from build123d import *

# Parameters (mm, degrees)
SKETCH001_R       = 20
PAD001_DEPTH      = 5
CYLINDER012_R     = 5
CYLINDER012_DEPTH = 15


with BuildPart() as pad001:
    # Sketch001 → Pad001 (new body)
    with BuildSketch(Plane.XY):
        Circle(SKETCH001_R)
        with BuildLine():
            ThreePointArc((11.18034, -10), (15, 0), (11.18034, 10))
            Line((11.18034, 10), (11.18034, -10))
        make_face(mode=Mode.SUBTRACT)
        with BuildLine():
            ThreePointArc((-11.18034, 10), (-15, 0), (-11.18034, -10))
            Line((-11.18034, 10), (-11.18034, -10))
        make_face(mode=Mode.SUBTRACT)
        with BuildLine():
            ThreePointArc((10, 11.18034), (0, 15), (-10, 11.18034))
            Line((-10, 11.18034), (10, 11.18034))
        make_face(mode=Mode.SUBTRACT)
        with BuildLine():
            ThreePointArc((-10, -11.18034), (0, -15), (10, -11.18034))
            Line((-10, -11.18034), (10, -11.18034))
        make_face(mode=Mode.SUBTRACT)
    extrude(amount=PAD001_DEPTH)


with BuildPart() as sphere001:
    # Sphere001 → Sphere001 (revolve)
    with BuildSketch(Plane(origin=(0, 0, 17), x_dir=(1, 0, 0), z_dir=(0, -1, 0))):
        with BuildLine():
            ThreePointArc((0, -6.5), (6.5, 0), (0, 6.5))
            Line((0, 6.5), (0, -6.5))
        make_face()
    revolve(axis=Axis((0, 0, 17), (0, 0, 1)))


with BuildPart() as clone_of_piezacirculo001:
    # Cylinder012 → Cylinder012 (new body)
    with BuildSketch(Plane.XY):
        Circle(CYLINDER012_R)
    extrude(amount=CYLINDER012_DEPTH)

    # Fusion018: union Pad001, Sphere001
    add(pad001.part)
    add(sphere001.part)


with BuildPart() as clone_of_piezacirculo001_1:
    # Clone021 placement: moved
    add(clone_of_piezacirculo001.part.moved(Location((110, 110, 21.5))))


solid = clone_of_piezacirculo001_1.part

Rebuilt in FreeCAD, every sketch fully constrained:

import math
import FreeCAD as App
import Part
import Sketcher
Q = App.Units.Quantity

doc = App.newDocument("Part")
body = doc.addObject("PartDesign::Body", "Body")

# Sketch on XY plane
sketch1 = doc.addObject("Sketcher::SketchObject", "Sketch")
body.addObject(sketch1)
sketch1.AttachmentSupport = (doc.XY_Plane, [""])
sketch1.MapMode = "FlatFace"
sketch1.addGeometry(Part.Circle(App.Vector(0, 0, 0), App.Vector(0, 0, 1), 20), False)
sketch1.addGeometry(Part.ArcOfCircle(Part.Circle(App.Vector(0, 0, 0), App.Vector(0, 0, 1), 15), math.radians(-132), math.radians(-48)), False)
sketch1.addGeometry(Part.LineSegment(App.Vector(-10, -11, 0), App.Vector(10, -11, 0)), False)
sketch1.addGeometry(Part.ArcOfCircle(Part.Circle(App.Vector(0, 0, 0), App.Vector(0, 0, 1), 15), math.radians(138), math.radians(222)), False)
sketch1.addGeometry(Part.LineSegment(App.Vector(-11, 10, 0), App.Vector(-11, -10, 0)), False)
sketch1.addGeometry(Part.ArcOfCircle(Part.Circle(App.Vector(0, 0, 0), App.Vector(0, 0, 1), 15), math.radians(48), math.radians(132)), False)
sketch1.addGeometry(Part.LineSegment(App.Vector(10, 11, 0), App.Vector(-10, 11, 0)), False)
sketch1.addGeometry(Part.ArcOfCircle(Part.Circle(App.Vector(0, 0, 0), App.Vector(0, 0, 1), 15), math.radians(-42), math.radians(42)), False)
sketch1.addGeometry(Part.LineSegment(App.Vector(11, -10, 0), App.Vector(11, 10, 0)), False)
sketch1.addConstraint(Sketcher.Constraint("Coincident", 1, 1, 2, 1))
sketch1.addConstraint(Sketcher.Constraint("Coincident", 2, 2, 1, 2))
sketch1.addConstraint(Sketcher.Constraint("Coincident", 3, 1, 4, 1))
sketch1.addConstraint(Sketcher.Constraint("Coincident", 4, 2, 3, 2))
sketch1.addConstraint(Sketcher.Constraint("Coincident", 5, 1, 6, 1))
sketch1.addConstraint(Sketcher.Constraint("Coincident", 6, 2, 5, 2))
sketch1.addConstraint(Sketcher.Constraint("Coincident", 7, 1, 8, 1))
sketch1.addConstraint(Sketcher.Constraint("Coincident", 8, 2, 7, 2))
sketch1.addConstraint(Sketcher.Constraint("Horizontal", 2))
sketch1.addConstraint(Sketcher.Constraint("Vertical", 4))
sketch1.addConstraint(Sketcher.Constraint("Horizontal", 6))
sketch1.addConstraint(Sketcher.Constraint("Vertical", 8))
sketch1.addConstraint(Sketcher.Constraint("Coincident", 0, 3, -1, 1))
sketch1.addConstraint(Sketcher.Constraint("Coincident", 1, 3, -1, 1))
sketch1.addConstraint(Sketcher.Constraint("Coincident", 3, 3, -1, 1))
sketch1.addConstraint(Sketcher.Constraint("Coincident", 5, 3, -1, 1))
sketch1.addConstraint(Sketcher.Constraint("Coincident", 7, 3, -1, 1))
sketch1.addConstraint(Sketcher.Constraint("Equal", 1, 3))
sketch1.addConstraint(Sketcher.Constraint("Equal", 3, 5))
sketch1.addConstraint(Sketcher.Constraint("Equal", 5, 7))
sketch1.addConstraint(Sketcher.Constraint("Horizontal", 4, 2, 7, 1))
sketch1.addConstraint(Sketcher.Constraint("Vertical", 2, 2, 5, 1))
sketch1.addConstraint(Sketcher.Constraint("Equal", 6, 4))
sketch1.addConstraint(Sketcher.Constraint("Diameter", 0, Q("40 mm")))
sketch1.addConstraint(Sketcher.Constraint("Radius", 1, Q("15 mm")))
sketch1.addConstraint(Sketcher.Constraint("DistanceX", 2, 1, 2, 2, Q("20 mm")))
pad1 = doc.addObject("PartDesign::Pad", "Pad")
body.addObject(pad1)
pad1.Profile = sketch1
pad1.Length = 5
body2 = doc.addObject("PartDesign::Body", "Body001")

# Sketch on XZ plane
sketch2 = doc.addObject("Sketcher::SketchObject", "Sketch001")
body2.addObject(sketch2)
sketch2.AttachmentSupport = (doc.getObject("XZ_Plane001"), [""])
sketch2.MapMode = "FlatFace"
sketch2.addGeometry(Part.ArcOfCircle(Part.Circle(App.Vector(0, 17, 0), App.Vector(0, 0, 1), 6), math.radians(-90), math.radians(90)), False)
sketch2.addGeometry(Part.LineSegment(App.Vector(0, 24, 0), App.Vector(0, 10, 0)), False)
sketch2.addConstraint(Sketcher.Constraint("Coincident", 0, 1, 1, 2))
sketch2.addConstraint(Sketcher.Constraint("Coincident", 1, 1, 0, 2))
sketch2.addConstraint(Sketcher.Constraint("Vertical", 1))
sketch2.addConstraint(Sketcher.Constraint("PointOnObject", 0, 3, -2))
sketch2.addConstraint(Sketcher.Constraint("PointOnObject", 0, 1, -2))
sketch2.addConstraint(Sketcher.Constraint("Radius", 0, Q("6.5 mm")))
sketch2.addConstraint(Sketcher.Constraint("DistanceY", -1, 1, 0, 3, Q("17 mm")))
revolution = doc.addObject("PartDesign::Revolution", "Revolution")
body2.addObject(revolution)
revolution.Profile = sketch2
revolution.ReferenceAxis = (sketch2, ["V_Axis"])
revolution.Angle = 360
body3 = doc.addObject("PartDesign::Body", "Body002")

# Sketch on XY plane
sketch3 = doc.addObject("Sketcher::SketchObject", "Sketch002")
body3.addObject(sketch3)
sketch3.AttachmentSupport = (doc.getObject("XY_Plane002"), [""])
sketch3.MapMode = "FlatFace"
sketch3.addGeometry(Part.Circle(App.Vector(0, 0, 0), App.Vector(0, 0, 1), 5), False)
sketch3.addConstraint(Sketcher.Constraint("Coincident", 0, 3, -1, 1))
sketch3.addConstraint(Sketcher.Constraint("Diameter", 0, Q("10 mm")))
pad2 = doc.addObject("PartDesign::Pad", "Pad001")
body3.addObject(pad2)
pad2.Profile = sketch3
pad2.Length = 15
doc.recompute()

boolean = doc.addObject("PartDesign::Boolean", "Boolean")
body3.addObject(boolean)
boolean.Type = "Fuse"
boolean.addObjects([body])
doc.recompute()

boolean2 = doc.addObject("PartDesign::Boolean", "Boolean001")
body3.addObject(boolean2)
boolean2.Type = "Fuse"
boolean2.addObjects([body2])
body4 = doc.addObject("PartDesign::Body", "Body003")
doc.recompute()

body3.Placement = App.Placement(App.Vector(110, 110, 21.5), App.Rotation(App.Vector(0, 0, 1), 0))
boolean3 = doc.addObject("PartDesign::Boolean", "Boolean002")
body4.addObject(boolean3)
boolean3.Type = "Fuse"
boolean3.addObjects([body3])

doc.recompute()
